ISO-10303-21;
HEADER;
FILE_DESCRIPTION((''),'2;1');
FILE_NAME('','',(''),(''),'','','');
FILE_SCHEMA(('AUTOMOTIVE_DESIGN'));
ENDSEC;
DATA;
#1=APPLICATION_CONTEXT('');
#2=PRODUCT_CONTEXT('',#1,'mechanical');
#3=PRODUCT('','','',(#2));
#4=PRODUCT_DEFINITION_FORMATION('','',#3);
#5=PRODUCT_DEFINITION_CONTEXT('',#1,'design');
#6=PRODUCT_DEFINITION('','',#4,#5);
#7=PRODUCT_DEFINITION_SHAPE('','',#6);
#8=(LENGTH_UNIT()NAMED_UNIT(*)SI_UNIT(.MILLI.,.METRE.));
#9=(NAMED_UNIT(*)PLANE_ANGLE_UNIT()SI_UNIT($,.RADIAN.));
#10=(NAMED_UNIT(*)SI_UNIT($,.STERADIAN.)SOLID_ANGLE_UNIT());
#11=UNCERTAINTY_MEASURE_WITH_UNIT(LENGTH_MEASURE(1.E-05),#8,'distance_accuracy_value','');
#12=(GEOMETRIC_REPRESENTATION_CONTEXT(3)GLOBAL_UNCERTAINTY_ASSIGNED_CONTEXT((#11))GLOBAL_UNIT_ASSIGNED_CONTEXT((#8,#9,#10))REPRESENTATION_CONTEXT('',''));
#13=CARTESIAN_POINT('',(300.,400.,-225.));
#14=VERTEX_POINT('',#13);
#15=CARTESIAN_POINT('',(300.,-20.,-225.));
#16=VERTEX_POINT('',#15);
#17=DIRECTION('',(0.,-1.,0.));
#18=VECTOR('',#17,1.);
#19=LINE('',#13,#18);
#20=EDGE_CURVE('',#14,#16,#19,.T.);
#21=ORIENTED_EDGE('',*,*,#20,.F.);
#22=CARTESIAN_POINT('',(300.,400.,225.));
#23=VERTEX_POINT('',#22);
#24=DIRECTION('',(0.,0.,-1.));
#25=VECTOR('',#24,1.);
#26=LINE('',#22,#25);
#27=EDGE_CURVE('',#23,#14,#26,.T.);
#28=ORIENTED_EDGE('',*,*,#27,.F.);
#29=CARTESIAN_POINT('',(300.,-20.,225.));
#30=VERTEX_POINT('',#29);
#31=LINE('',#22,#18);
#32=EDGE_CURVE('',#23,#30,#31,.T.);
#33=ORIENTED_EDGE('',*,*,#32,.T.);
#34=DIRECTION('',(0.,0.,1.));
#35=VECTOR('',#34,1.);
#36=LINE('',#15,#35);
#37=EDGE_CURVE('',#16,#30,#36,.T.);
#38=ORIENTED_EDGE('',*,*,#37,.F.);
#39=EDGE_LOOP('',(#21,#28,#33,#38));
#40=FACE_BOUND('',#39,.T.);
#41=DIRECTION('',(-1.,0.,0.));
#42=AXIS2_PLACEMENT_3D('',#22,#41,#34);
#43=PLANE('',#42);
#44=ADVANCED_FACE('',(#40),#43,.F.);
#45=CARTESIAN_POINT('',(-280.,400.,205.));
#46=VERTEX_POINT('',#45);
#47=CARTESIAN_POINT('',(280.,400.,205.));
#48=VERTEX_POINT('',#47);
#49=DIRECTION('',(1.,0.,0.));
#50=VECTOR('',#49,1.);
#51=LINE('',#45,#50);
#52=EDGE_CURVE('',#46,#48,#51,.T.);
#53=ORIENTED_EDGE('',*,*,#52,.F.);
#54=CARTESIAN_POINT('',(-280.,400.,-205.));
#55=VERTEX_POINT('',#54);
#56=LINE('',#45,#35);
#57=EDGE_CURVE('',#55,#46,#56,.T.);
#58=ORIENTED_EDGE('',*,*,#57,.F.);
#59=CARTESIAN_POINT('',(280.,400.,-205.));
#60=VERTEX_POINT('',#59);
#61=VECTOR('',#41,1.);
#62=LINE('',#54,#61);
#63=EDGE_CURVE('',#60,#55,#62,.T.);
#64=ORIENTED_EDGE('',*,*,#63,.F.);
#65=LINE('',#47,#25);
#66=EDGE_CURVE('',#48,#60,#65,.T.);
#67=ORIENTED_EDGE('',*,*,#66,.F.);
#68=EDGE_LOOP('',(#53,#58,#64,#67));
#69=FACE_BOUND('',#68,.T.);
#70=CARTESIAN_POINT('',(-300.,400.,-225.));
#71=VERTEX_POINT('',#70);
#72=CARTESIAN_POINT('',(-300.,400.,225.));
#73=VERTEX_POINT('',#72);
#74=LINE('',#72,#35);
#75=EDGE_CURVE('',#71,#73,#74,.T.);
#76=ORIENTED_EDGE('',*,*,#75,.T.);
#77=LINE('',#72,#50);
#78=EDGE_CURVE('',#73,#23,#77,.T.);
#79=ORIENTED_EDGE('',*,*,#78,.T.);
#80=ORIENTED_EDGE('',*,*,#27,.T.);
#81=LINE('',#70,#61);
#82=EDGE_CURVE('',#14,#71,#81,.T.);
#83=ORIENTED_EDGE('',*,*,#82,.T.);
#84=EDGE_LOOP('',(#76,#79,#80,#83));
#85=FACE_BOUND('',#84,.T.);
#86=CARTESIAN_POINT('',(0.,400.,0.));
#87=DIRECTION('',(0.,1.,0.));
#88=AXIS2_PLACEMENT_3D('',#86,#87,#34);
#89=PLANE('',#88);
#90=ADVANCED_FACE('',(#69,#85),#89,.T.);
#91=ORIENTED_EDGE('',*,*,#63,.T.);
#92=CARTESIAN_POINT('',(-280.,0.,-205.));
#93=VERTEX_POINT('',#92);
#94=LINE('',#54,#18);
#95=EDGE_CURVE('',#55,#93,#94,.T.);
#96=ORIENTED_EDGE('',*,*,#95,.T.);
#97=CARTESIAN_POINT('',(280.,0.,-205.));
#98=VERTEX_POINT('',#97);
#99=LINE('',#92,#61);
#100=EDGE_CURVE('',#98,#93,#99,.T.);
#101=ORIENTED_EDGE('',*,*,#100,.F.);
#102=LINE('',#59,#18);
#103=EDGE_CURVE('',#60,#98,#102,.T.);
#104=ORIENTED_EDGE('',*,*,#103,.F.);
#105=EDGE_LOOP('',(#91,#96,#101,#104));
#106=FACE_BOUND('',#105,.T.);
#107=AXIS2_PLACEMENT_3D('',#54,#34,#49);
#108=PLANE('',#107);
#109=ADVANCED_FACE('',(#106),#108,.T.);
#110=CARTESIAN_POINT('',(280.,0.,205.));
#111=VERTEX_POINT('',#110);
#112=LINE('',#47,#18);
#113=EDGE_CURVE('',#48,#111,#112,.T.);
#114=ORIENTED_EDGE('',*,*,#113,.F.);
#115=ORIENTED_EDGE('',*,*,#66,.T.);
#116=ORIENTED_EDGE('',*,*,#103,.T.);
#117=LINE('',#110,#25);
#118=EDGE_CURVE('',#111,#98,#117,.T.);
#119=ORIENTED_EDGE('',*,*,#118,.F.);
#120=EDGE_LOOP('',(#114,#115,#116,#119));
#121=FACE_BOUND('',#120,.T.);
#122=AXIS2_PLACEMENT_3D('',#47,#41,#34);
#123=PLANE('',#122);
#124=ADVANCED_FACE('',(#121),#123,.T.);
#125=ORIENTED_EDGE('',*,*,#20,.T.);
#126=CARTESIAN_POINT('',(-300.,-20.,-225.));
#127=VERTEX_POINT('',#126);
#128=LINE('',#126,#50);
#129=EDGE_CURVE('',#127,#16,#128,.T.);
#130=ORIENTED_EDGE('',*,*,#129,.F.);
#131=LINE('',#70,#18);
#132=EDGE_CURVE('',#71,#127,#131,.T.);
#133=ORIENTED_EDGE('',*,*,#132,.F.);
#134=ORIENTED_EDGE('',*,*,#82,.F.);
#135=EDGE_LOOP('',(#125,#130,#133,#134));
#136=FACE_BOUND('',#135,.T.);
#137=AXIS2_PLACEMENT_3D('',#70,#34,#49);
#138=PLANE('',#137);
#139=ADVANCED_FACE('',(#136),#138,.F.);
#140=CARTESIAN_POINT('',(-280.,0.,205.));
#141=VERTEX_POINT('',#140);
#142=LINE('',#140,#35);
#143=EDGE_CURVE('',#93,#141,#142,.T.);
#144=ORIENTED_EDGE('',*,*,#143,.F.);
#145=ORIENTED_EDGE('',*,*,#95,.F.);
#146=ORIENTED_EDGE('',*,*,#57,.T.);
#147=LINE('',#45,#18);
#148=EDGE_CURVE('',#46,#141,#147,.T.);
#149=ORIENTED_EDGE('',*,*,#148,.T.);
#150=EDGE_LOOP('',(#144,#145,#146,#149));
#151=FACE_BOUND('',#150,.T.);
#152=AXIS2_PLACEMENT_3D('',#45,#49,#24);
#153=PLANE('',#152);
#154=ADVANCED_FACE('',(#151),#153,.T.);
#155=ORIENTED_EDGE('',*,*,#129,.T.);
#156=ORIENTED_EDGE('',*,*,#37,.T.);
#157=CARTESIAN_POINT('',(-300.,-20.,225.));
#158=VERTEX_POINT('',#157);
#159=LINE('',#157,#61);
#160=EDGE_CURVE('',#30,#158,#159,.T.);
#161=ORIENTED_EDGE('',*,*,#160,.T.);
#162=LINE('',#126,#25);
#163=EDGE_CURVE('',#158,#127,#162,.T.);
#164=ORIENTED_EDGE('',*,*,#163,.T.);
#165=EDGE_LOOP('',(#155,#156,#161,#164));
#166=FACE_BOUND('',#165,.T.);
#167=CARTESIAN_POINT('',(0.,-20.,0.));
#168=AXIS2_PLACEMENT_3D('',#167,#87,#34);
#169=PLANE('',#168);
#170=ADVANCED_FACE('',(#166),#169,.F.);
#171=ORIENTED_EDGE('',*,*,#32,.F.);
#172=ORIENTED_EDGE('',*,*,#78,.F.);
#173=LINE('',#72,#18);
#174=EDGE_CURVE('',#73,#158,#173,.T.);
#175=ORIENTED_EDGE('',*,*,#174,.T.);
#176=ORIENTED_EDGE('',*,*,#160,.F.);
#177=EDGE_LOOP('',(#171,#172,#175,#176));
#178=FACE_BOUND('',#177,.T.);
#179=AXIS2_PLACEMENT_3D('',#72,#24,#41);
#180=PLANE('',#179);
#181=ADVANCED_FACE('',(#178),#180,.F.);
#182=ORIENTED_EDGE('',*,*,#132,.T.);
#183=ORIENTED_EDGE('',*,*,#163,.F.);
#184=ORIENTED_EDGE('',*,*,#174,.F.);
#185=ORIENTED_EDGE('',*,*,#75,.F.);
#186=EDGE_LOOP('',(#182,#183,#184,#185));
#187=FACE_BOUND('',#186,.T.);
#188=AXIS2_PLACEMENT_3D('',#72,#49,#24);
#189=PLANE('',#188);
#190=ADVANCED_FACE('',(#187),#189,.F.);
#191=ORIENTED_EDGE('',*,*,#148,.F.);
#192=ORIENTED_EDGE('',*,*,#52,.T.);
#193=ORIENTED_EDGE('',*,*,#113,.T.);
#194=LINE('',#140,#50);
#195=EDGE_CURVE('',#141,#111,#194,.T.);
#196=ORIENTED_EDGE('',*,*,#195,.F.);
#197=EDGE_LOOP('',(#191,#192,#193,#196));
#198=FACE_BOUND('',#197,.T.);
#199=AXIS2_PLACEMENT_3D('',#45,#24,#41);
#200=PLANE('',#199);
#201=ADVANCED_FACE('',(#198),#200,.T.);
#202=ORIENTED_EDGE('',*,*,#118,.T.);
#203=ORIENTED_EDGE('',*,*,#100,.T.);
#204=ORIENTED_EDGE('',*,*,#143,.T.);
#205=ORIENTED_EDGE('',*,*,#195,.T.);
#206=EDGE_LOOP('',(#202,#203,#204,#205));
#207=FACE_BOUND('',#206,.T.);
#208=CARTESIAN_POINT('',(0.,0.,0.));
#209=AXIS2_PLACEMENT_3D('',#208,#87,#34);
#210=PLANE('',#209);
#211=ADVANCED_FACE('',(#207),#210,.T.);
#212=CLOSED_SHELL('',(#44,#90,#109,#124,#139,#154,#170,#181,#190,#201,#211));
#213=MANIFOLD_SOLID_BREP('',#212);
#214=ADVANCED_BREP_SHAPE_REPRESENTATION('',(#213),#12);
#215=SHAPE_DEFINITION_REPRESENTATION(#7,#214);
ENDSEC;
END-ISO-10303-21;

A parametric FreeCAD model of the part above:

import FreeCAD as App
import Part
import Sketcher

doc = App.newDocument("Part")
body = doc.addObject("PartDesign::Body", "Body")

sketch1 = body.newObject("Sketcher::SketchObject", "Sketch")
sketch1.AttachmentSupport = (doc.getObject("XZ_Plane"), [""])
sketch1.MapMode = "FlatFace"
sketch1.addGeometry([
    Part.LineSegment(App.Vector(-300, -225, 0), App.Vector(-300, 225, 0)),
    Part.LineSegment(App.Vector(-300, 225, 0), App.Vector(300, 225, 0)),
    Part.LineSegment(App.Vector(300, 225, 0), App.Vector(300, -225, 0)),
    Part.LineSegment(App.Vector(300, -225, 0), App.Vector(-300, -225, 0)),
    Part.LineSegment(App.Vector(280, 205, 0), App.Vector(-280, 205, 0)),
    Part.LineSegment(App.Vector(-280, 205, 0), App.Vector(-280, -205, 0)),
    Part.LineSegment(App.Vector(-280, -205, 0), App.Vector(280, -205, 0)),
    Part.LineSegment(App.Vector(280, -205, 0), App.Vector(280, 205, 0)),
], False)
sketch1.addConstraint([
    Sketcher.Constraint("Coincident", 0, 2, 1, 1),
    Sketcher.Constraint("Coincident", 1, 2, 2, 1),
    Sketcher.Constraint("Coincident", 2, 2, 3, 1),
    Sketcher.Constraint("Coincident", 3, 2, 0, 1),
    Sketcher.Constraint("Coincident", 4, 2, 5, 1),
    Sketcher.Constraint("Coincident", 5, 2, 6, 1),
    Sketcher.Constraint("Coincident", 6, 2, 7, 1),
    Sketcher.Constraint("Coincident", 7, 2, 4, 1),
    Sketcher.Constraint("Vertical", 0),
    Sketcher.Constraint("Horizontal", 1),
    Sketcher.Constraint("Vertical", 2),
    Sketcher.Constraint("Horizontal", 3),
    Sketcher.Constraint("Horizontal", 4),
    Sketcher.Constraint("Vertical", 5),
    Sketcher.Constraint("Horizontal", 6),
    Sketcher.Constraint("Vertical", 7),
    Sketcher.Constraint("Symmetric", 0, 2, 2, 2, -1, 1),
    Sketcher.Constraint("Symmetric", 4, 2, 6, 2, -1, 1),
    Sketcher.Constraint("DistanceX", 1, 1, 1, 2, 600.0),
    Sketcher.Constraint("DistanceX", 4, 2, 4, 1, 560.0),
    Sketcher.Constraint("DistanceY", 0, 1, 0, 2, 450.0),
    Sketcher.Constraint("DistanceY", 5, 2, 5, 1, 410.0),
])
pad1 = body.newObject("PartDesign::Pad", "Pad")
pad1.Profile = sketch1
pad1.Length = 400
pad1.Reversed = True

sketch2 = body.newObject("Sketcher::SketchObject", "Sketch001")
sketch2.AttachmentSupport = (doc.getObject("XZ_Plane"), [""])
sketch2.MapMode = "FlatFace"
sketch2.addGeometry([
    Part.LineSegment(App.Vector(-300, 225, 0), App.Vector(-300, -225, 0)),
    Part.LineSegment(App.Vector(-300, -225, 0), App.Vector(300, -225, 0)),
    Part.LineSegment(App.Vector(300, -225, 0), App.Vector(300, 225, 0)),
    Part.LineSegment(App.Vector(300, 225, 0), App.Vector(-300, 225, 0)),
], False)
sketch2.addConstraint([
    Sketcher.Constraint("Coincident", 0, 2, 1, 1),
    Sketcher.Constraint("Coincident", 1, 2, 2, 1),
    Sketcher.Constraint("Coincident", 2, 2, 3, 1),
    Sketcher.Constraint("Coincident", 3, 2, 0, 1),
    Sketcher.Constraint("Vertical", 0),
    Sketcher.Constraint("Horizontal", 1),
    Sketcher.Constraint("Vertical", 2),
    Sketcher.Constraint("Horizontal", 3),
    Sketcher.Constraint("Symmetric", 0, 2, 2, 2, -1, 1),
    Sketcher.Constraint("DistanceX", 1, 1, 1, 2, 600.0),
    Sketcher.Constraint("DistanceY", 0, 2, 0, 1, 450.0),
])
pad2 = body.newObject("PartDesign::Pad", "Pad001")
pad2.Profile = sketch2
pad2.Length = 20

doc.recompute()
